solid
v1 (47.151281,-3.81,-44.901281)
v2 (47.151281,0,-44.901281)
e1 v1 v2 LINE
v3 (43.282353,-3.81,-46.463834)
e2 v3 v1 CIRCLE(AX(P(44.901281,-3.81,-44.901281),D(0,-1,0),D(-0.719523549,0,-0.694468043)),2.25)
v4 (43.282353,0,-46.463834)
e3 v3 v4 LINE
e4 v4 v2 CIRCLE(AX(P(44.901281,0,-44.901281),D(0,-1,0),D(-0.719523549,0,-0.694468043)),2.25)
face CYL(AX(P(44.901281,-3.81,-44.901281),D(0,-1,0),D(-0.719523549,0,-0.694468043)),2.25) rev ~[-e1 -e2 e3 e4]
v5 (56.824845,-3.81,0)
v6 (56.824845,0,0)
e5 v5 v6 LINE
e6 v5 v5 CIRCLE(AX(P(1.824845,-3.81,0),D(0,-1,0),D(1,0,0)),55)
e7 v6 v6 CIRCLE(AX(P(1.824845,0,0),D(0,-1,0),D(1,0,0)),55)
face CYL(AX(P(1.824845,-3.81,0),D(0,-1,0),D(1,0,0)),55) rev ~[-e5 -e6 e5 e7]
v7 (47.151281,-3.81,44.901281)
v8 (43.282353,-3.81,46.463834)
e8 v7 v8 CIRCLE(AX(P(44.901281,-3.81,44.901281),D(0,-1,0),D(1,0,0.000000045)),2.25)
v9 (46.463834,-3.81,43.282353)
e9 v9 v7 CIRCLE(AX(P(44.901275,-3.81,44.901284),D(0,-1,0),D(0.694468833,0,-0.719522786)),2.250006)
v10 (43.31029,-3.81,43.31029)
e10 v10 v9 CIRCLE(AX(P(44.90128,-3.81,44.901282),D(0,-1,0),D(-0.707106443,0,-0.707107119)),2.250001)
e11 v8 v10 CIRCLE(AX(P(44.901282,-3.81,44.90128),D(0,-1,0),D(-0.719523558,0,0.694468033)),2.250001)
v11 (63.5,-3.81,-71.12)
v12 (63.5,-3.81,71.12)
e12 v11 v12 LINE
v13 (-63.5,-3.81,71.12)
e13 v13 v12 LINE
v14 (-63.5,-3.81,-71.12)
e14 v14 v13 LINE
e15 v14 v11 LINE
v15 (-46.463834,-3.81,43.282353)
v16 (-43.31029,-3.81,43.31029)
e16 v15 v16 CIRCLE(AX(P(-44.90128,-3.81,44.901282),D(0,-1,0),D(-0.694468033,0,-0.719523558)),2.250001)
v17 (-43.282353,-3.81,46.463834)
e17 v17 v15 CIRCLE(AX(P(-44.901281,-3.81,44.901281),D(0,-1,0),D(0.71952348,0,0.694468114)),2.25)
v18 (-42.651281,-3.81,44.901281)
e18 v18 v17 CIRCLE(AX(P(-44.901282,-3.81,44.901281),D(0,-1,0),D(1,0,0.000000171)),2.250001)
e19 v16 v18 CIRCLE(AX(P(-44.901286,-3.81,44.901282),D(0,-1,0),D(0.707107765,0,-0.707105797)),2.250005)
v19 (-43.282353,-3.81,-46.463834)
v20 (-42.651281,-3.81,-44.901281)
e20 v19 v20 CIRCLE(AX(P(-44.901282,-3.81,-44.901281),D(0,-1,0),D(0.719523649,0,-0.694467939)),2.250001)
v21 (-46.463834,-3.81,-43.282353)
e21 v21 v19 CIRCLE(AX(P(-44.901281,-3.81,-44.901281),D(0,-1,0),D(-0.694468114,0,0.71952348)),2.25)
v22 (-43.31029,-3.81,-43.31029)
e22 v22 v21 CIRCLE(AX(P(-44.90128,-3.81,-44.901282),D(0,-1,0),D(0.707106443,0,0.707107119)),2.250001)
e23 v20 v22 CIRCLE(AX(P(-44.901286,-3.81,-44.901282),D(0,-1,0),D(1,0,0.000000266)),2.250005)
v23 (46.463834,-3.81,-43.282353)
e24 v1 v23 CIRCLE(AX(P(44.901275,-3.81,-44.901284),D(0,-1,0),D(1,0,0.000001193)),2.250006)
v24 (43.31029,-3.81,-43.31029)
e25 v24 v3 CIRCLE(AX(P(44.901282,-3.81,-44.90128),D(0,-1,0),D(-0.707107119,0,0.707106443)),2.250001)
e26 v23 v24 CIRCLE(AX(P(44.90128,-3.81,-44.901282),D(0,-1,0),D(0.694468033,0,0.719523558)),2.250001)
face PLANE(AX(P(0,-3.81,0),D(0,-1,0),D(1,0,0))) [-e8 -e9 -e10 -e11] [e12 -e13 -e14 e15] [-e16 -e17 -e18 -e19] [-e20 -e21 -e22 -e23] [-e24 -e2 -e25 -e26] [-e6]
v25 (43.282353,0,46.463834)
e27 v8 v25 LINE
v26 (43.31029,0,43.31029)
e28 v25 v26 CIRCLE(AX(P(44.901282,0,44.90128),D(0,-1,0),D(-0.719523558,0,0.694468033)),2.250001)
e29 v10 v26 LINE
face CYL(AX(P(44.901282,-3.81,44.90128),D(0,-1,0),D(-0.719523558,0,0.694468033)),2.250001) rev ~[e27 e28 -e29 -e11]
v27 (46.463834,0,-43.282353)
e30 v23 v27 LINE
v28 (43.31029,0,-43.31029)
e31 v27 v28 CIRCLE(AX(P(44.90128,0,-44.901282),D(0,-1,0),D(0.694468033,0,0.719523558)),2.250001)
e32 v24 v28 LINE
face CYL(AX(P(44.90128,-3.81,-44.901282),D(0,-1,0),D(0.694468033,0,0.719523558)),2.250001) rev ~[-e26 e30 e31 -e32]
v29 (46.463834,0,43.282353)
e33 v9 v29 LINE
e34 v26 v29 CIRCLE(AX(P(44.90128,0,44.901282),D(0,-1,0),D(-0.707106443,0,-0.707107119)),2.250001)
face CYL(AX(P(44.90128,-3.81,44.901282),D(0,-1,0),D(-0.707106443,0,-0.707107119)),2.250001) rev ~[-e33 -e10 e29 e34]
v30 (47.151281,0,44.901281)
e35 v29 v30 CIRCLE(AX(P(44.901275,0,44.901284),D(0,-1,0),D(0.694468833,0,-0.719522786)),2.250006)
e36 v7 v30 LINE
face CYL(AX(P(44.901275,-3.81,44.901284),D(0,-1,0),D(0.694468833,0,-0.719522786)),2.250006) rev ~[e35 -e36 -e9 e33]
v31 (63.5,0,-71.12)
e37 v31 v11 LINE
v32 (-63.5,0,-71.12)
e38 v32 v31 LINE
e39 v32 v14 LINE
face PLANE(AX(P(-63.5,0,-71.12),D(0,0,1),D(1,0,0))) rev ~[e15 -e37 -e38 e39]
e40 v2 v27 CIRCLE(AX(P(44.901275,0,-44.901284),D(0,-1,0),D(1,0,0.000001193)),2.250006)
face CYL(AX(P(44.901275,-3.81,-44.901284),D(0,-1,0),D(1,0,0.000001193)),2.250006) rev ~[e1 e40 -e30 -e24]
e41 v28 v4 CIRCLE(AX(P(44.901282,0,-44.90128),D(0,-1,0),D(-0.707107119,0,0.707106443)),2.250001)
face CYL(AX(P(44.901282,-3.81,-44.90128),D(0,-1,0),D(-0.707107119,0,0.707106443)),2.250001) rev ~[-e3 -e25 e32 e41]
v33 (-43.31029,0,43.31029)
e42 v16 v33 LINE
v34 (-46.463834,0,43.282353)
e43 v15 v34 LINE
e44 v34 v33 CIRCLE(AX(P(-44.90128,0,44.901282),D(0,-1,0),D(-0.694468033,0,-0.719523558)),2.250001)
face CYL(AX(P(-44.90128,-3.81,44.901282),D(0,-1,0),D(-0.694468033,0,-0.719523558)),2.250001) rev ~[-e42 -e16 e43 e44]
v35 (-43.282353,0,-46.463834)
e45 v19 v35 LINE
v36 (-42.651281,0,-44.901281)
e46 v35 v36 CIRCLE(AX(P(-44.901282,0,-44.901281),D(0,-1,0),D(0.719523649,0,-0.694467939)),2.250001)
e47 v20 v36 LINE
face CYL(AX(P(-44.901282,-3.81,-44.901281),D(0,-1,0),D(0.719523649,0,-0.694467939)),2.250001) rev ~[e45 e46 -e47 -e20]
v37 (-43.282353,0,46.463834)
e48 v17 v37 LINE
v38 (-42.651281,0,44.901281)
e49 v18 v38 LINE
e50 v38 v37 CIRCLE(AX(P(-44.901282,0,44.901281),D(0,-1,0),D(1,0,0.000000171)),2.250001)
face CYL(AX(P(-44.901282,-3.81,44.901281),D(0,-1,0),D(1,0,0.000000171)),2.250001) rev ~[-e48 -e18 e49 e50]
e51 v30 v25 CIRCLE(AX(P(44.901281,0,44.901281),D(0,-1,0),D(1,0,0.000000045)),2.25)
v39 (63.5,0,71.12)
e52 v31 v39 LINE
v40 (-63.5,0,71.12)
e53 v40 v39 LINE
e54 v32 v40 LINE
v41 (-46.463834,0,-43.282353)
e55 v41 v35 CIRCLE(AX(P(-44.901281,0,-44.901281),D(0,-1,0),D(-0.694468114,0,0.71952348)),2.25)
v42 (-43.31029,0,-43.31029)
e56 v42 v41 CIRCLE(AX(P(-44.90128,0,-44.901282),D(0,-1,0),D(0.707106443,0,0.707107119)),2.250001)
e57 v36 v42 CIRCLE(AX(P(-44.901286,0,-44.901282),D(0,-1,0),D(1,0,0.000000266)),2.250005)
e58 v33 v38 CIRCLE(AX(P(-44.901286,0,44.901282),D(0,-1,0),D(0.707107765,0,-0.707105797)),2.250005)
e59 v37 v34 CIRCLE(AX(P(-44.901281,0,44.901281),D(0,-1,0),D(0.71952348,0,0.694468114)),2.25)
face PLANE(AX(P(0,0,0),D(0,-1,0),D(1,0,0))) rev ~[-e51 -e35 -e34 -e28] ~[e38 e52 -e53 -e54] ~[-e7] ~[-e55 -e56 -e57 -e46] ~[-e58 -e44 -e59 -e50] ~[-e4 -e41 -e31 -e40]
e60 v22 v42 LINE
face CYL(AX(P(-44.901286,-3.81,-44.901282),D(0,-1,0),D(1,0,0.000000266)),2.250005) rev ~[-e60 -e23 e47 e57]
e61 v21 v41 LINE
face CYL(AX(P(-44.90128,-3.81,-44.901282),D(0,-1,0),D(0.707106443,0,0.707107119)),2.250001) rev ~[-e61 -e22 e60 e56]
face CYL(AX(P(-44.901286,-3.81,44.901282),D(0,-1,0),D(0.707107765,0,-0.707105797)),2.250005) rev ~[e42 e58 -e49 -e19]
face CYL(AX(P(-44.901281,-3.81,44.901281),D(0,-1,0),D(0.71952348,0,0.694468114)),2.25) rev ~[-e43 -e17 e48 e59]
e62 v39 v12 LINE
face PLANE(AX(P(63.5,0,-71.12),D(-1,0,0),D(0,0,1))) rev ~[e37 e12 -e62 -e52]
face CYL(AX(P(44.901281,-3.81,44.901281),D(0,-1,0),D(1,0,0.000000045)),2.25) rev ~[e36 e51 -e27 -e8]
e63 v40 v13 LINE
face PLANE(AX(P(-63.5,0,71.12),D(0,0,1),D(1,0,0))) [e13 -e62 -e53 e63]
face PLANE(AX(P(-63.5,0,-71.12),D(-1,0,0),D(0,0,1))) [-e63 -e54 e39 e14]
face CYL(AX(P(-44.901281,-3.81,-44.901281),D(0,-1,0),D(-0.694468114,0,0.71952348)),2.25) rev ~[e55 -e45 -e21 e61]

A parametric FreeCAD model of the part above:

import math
import FreeCAD as App
import Part
import Sketcher
from FreeCAD import Vector

doc = App.newDocument("Part")
body = doc.addObject("PartDesign::Body", "Body")

# Sketch on XZ plane
sketch1 = doc.addObject("Sketcher::SketchObject", "Sketch")
body.addObject(sketch1)
sketch1.AttachmentSupport = (doc.XZ_Plane, [""])
sketch1.MapMode = "FlatFace"
sketch1.addGeometry([
    Part.LineSegment(Vector(-64, 71, 0), Vector(-64, -71, 0)),
    Part.LineSegment(Vector(-64, -71, 0), Vector(64, -71, 0)),
    Part.LineSegment(Vector(64, -71, 0), Vector(64, 71, 0)),
    Part.LineSegment(Vector(64, 71, 0), Vector(-64, 71, 0)),
], False)
sketch1.addConstraint([
    Sketcher.Constraint("Coincident", 0, 2, 1, 1),
    Sketcher.Constraint("Coincident", 1, 2, 2, 1),
    Sketcher.Constraint("Coincident", 2, 2, 3, 1),
    Sketcher.Constraint("Coincident", 3, 2, 0, 1),
    Sketcher.Constraint("Vertical", 0),
    Sketcher.Constraint("Horizontal", 1),
    Sketcher.Constraint("Vertical", 2),
    Sketcher.Constraint("Horizontal", 3),
    Sketcher.Constraint("Symmetric", 0, 2, 2, 2, -1, 1),
    Sketcher.Constraint("DistanceX", 1, 1, 1, 2, 127.0),
    Sketcher.Constraint("DistanceY", 0, 2, 0, 1, 142.24),
])
pad1 = doc.addObject("PartDesign::Pad", "Pad")
body.addObject(pad1)
pad1.Profile = sketch1
pad1.Length = 3.81

# Sketch on XZ plane
sketch2 = doc.addObject("Sketcher::SketchObject", "Sketch001")
body.addObject(sketch2)
sketch2.AttachmentSupport = (doc.XZ_Plane, [""])
sketch2.MapMode = "FlatFace"
sketch2.AttachmentOffset = App.Placement(Vector(0, 0, 3.81), App.Rotation())
sketch2.addGeometry(Part.Circle(Vector(2, 0, 0), Vector(0, 0, 1), 55), False)
sketch2.addConstraint([
    Sketcher.Constraint("PointOnObject", 0, 3, -1),
    Sketcher.Constraint("Diameter", 0, 110.0),
    Sketcher.Constraint("DistanceX", -1, 1, 0, 3, 1.824845),
])
pocket1 = doc.addObject("PartDesign::Pocket", "Pocket")
body.addObject(pocket1)
pocket1.Profile = sketch2
pocket1.Type = "ThroughAll"

# Sketch on XZ plane
sketch3 = doc.addObject("Sketcher::SketchObject", "Sketch002")
body.addObject(sketch3)
sketch3.AttachmentSupport = (doc.XZ_Plane, [""])
sketch3.MapMode = "FlatFace"
sketch3.AttachmentOffset = App.Placement(Vector(0, 0, 3.81), App.Rotation())
sketch3.addGeometry([
    Part.ArcOfCircle(Part.Circle(Vector(-44.9, 44.9, 0), Vector(0, 0, 1), 2.3), math.radians(-134), math.radians(-45)),  # 0
    Part.ArcOfCircle(Part.Circle(Vector(-44.9, 44.9, 0), Vector(0, 0, 1), 2.3), math.radians(-45), math.radians(0)),  # 1
    Part.ArcOfCircle(Part.Circle(Vector(-44.9, 44.9, 0), Vector(0, 0, 1), 2.3), math.radians(0), math.radians(44)),  # 2
    Part.ArcOfCircle(Part.Circle(Vector(-44.9, 44.9, 0), Vector(0, 0, 1), 2.2), math.radians(44), math.radians(226)),  # 3
    Part.ArcOfCircle(Part.Circle(Vector(44.9, 44.9, 0), Vector(0, 0, 1), 2.3), math.radians(-46), math.radians(0)),  # 4
    Part.ArcOfCircle(Part.Circle(Vector(44.9, 44.9, 0), Vector(0, 0, 1), 2.3), math.radians(0), math.radians(136)),  # 5
    Part.ArcOfCircle(Part.Circle(Vector(44.9, 44.9, 0), Vector(0, 0, 1), 2.3), math.radians(136), math.radians(225)),  # 6
    Part.ArcOfCircle(Part.Circle(Vector(44.9, 44.9, 0), Vector(0, 0, 1), 2.3), math.radians(-135), math.radians(-46)),  # 7
    Part.ArcOfCircle(Part.Circle(Vector(44.9, -44.9, 0), Vector(0, 0, 1), 2.3), math.radians(46), math.radians(135)),  # 8
    Part.ArcOfCircle(Part.Circle(Vector(44.9, -44.9, 0), Vector(0, 0, 1), 2.3), math.radians(135), math.radians(224)),  # 9
    Part.ArcOfCircle(Part.Circle(Vector(44.9, -44.9, 0), Vector(0, 0, 1), 2.3), math.radians(-136), math.radians(0)),  # 10
    Part.ArcOfCircle(Part.Circle(Vector(44.9, -44.9, 0), Vector(0, 0, 1), 2.3), math.radians(0), math.radians(46)),  # 11
    Part.ArcOfCircle(Part.Circle(Vector(-44.9, -44.9, 0), Vector(0, 0, 1), 2.2), math.radians(134), math.radians(316)),  # 12
    Part.ArcOfCircle(Part.Circle(Vector(-44.9, -44.9, 0), Vector(0, 0, 1), 2.3), math.radians(-44), math.radians(0)),  # 13
    Part.ArcOfCircle(Part.Circle(Vector(-44.9, -44.9, 0), Vector(0, 0, 1), 2.3), math.radians(0), math.radians(45)),  # 14
    Part.ArcOfCircle(Part.Circle(Vector(-44.9, -44.9, 0), Vector(0, 0, 1), 2.3), math.radians(45), math.radians(134)),  # 15
], False)
sketch3.addConstraint([
    Sketcher.Constraint("Tangent", 0, 2, 1, 1),
    Sketcher.Constraint("Tangent", 1, 2, 2, 1),
    Sketcher.Constraint("Tangent", 2, 2, 3, 1),
    Sketcher.Constraint("Tangent", 3, 2, 0, 1),
    Sketcher.Constraint("Tangent", 4, 2, 5, 1),
    Sketcher.Constraint("Tangent", 5, 2, 6, 1),
    Sketcher.Constraint("Tangent", 6, 2, 7, 1),
    Sketcher.Constraint("Tangent", 7, 2, 4, 1),
    Sketcher.Constraint("Tangent", 8, 2, 9, 1),
    Sketcher.Constraint("Tangent", 9, 2, 10, 1),
    Sketcher.Constraint("Tangent", 10, 2, 11, 1),
    Sketcher.Constraint("Tangent", 11, 2, 8, 1),
    Sketcher.Constraint("Tangent", 12, 2, 13, 1),
    Sketcher.Constraint("Tangent", 13, 2, 14, 1),
    Sketcher.Constraint("Tangent", 14, 2, 15, 1),
    Sketcher.Constraint("Tangent", 15, 2, 12, 1),
    Sketcher.Constraint("Equal", 0, 2),
    Sketcher.Constraint("Equal", 1, 4),
    Sketcher.Constraint("Equal", 3, 5),
    Sketcher.Constraint("Equal", 7, 8),
    Sketcher.Constraint("Equal", 8, 9),
    Sketcher.Constraint("Equal", 10, 12),
    Sketcher.Constraint("Equal", 12, 13),
    Sketcher.Constraint("Symmetric", 0, 3, 8, 3, -1, 1),
    Sketcher.Constraint("Symmetric", 4, 3, 12, 3, -1, 1),
    Sketcher.Constraint("Symmetric", 0, 3, 4, 3, -2),
    Sketcher.Constraint("Horizontal", 7, 3, 1, 2),
    Sketcher.Constraint("Horizontal", 1, 2, 4, 2),
    Sketcher.Constraint("Horizontal", 2, 2, 5, 2),
    Sketcher.Constraint("Horizontal", 0, 2, 6, 2),
    Sketcher.Constraint("Horizontal", 3, 2, 7, 2),
    Sketcher.Constraint("Horizontal", 15, 3, 10, 2),
    Sketcher.Constraint("Horizontal", 9, 2, 12, 2),
    Sketcher.Constraint("Horizontal", 10, 2, 13, 2),
    Sketcher.Constraint("Horizontal", 8, 2, 14, 2),
    Sketcher.Constraint("Horizontal", 11, 2, 15, 2),
    Sketcher.Constraint("Vertical", 6, 2, 8, 2),
    Sketcher.Constraint("Vertical", 5, 2, 9, 2),
    Sketcher.Constraint("Vertical", 7, 2, 11, 2),
    Sketcher.Constraint("Radius", 0, 2.250001),
    Sketcher.Constraint("DistanceX", 0, 3, -1, 1, 44.90128),
    Sketcher.Constraint("DistanceY", -1, 1, 0, 3, 44.901282),
    Sketcher.Constraint("DistanceX", 0, 2, -1, 1, 43.31029),
    Sketcher.Constraint("DistanceX", 2, 3, 2, 2, 1.618929),
    Sketcher.Constraint("DistanceY", 3, 2, 1, 3, 1.618929),
])
pocket2 = doc.addObject("PartDesign::Pocket", "Pocket001")
body.addObject(pocket2)
pocket2.Profile = sketch3
pocket2.Type = "ThroughAll"

doc.recompute()
